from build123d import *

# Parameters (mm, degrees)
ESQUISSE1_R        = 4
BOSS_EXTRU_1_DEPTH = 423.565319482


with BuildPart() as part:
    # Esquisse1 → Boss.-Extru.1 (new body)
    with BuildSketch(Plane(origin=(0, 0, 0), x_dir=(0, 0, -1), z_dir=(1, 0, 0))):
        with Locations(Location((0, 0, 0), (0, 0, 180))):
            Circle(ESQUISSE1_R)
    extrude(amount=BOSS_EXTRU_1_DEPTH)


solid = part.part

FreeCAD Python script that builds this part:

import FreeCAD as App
import Part
import Sketcher

V = App.Vector

doc = App.newDocument("Part")
body = doc.addObject("PartDesign::Body", "Body")

# Sketch on YZ plane
sketch1 = body.newObject("Sketcher::SketchObject", "Sketch")
sketch1.AttachmentSupport = (doc.getObject("YZ_Plane"), [""])
sketch1.MapMode = "FlatFace"
sketch1.addGeometry(Part.Circle(V(0, 0, 0), V(0, 0, 1), 4), False)
sketch1.addConstraint([
    Sketcher.Constraint("Coincident", 0, 3, -1, 1),
    Sketcher.Constraint("Diameter", 0, 8.0),
])
pad1 = body.newObject("PartDesign::Pad", "Pad")
pad1.Profile = sketch1
pad1.Length = 423.565319

doc.recompute()
